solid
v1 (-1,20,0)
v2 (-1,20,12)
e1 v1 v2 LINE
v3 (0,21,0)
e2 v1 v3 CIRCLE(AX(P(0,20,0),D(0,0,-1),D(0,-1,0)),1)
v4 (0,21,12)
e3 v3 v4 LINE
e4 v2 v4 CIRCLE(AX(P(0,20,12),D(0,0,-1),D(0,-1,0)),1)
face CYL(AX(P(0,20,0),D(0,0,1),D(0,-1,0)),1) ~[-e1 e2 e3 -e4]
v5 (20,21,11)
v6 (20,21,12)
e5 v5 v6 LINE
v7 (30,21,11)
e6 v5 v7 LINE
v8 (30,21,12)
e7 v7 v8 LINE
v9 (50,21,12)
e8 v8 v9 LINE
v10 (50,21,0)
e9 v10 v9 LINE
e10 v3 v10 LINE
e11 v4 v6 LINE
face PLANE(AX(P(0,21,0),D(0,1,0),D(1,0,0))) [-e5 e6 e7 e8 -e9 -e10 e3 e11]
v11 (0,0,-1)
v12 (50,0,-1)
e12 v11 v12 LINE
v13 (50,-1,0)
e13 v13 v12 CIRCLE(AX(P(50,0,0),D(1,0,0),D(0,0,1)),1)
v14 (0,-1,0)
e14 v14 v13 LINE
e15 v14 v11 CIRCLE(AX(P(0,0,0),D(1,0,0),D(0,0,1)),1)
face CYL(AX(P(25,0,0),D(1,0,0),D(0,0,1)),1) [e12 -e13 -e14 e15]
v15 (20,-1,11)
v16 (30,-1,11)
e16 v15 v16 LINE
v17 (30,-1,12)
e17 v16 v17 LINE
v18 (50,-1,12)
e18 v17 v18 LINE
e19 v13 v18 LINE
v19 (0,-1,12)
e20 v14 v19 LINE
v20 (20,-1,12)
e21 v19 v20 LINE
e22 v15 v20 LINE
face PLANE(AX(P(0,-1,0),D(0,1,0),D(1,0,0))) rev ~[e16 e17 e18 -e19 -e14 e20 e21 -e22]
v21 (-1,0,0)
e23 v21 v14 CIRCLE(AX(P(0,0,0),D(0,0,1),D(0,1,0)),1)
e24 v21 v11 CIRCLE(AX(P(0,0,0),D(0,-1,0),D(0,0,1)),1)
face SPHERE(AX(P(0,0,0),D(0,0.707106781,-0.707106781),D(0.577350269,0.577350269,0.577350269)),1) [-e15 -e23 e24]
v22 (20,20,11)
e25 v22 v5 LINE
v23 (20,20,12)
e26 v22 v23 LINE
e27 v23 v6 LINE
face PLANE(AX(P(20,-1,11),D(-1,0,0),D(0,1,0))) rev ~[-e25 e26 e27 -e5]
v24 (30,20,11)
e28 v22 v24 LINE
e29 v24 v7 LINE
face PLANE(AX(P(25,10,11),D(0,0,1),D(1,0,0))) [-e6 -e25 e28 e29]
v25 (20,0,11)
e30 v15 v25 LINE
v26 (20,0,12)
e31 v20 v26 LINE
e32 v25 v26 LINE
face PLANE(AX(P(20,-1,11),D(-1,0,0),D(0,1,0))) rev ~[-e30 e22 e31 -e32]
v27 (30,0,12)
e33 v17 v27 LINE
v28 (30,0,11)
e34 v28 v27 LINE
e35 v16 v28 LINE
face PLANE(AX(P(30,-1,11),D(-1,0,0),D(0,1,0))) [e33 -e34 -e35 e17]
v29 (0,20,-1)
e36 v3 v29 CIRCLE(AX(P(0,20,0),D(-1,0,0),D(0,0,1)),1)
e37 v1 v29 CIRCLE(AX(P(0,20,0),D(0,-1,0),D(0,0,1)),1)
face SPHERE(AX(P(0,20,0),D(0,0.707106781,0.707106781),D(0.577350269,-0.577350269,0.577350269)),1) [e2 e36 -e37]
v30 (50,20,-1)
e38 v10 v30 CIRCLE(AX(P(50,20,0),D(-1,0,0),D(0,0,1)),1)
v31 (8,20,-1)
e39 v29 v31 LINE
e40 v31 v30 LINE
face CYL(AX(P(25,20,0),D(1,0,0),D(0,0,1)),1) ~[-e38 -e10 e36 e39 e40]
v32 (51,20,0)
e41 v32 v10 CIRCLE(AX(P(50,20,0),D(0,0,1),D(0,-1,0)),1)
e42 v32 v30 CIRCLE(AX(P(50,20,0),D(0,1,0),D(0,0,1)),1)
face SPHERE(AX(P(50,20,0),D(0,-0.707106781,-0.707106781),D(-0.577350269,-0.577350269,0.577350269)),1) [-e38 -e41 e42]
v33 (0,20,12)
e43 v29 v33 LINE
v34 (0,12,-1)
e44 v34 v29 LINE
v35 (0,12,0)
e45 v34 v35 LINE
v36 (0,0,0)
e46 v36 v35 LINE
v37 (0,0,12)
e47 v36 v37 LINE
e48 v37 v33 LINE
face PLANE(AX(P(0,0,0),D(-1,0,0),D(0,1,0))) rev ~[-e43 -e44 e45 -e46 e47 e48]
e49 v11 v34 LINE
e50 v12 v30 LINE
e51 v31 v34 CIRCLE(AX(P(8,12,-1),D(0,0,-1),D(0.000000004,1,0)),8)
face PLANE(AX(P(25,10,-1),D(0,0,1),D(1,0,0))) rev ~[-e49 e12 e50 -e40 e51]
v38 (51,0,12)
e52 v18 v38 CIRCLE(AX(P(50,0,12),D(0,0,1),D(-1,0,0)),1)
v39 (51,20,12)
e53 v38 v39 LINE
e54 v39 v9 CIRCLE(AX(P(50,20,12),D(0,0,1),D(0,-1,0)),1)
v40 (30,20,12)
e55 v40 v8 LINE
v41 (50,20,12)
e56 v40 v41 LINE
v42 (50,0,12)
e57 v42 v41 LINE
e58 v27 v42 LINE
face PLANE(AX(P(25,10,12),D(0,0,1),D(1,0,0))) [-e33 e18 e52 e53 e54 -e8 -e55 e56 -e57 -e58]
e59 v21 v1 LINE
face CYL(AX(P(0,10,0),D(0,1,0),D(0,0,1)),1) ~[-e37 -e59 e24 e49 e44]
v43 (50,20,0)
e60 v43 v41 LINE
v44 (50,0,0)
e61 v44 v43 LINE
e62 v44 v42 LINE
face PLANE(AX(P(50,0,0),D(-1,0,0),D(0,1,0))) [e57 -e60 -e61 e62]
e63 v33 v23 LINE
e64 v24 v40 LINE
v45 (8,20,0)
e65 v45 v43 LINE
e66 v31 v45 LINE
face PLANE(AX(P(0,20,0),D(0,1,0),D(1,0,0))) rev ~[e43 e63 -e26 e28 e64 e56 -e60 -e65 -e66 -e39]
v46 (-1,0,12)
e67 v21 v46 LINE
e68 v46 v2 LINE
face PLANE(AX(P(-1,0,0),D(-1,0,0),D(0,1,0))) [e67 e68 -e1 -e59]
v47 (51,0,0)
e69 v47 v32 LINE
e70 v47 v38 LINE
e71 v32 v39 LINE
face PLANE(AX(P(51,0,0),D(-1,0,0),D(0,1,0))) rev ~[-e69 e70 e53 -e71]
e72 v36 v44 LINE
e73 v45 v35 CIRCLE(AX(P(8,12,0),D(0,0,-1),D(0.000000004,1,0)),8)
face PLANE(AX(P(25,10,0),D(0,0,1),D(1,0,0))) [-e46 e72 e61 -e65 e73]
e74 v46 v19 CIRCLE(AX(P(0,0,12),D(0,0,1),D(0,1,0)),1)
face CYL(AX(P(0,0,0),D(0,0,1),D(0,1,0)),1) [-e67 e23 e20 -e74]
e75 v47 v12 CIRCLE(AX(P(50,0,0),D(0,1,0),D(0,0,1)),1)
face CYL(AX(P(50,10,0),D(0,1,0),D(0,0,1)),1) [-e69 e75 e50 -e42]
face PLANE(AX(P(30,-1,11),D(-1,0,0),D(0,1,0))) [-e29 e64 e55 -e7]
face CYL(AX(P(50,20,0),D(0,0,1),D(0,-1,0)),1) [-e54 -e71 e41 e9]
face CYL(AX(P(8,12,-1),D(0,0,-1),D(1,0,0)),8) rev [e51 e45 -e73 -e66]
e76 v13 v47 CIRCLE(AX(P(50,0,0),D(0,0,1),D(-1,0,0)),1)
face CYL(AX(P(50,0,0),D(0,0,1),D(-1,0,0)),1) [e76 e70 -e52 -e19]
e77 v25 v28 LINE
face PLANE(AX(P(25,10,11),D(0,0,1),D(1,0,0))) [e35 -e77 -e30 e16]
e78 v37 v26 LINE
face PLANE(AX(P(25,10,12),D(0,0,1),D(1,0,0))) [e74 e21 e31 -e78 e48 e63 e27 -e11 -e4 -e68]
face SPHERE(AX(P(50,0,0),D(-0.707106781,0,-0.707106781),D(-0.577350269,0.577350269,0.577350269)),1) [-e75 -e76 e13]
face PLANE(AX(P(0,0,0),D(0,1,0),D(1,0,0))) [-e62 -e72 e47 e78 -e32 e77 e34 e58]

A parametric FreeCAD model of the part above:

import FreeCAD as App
import Part
import Sketcher
from FreeCAD import Vector


def faces_at(feature, points):
    """Names of the faces that lie closest to the given points."""
    faces = feature.Shape.Faces
    near = lambda p: min(range(len(faces)), key=lambda i: faces[i].distToShape(Part.Vertex(*p))[0])
    return sorted({f"Face{near(p) + 1}" for p in points})

doc = App.newDocument("Part")
params = doc.addObject("Spreadsheet::Sheet", "Params")
for row, (alias, value) in enumerate([
    ("sketch1_width", "50 mm"),
    ("sketch1_height", "20 mm"),
    ("pad1_length", "12 mm"),
    ("thickness_wall", "1 mm"),
    ("sketch2_diameter", "16 mm"),
    ("pocket1_length", "1 mm"),
    ("sketch3_width", "10 mm"),
    ("sketch3_height", "22 mm"),
    ("pocket2_length", "1 mm"),
    ("sketch4_width", "8 mm"),
    ("pocket3_length", "1 mm"),
], start=1):
    params.set(f"A{row}", alias)
    params.set(f"B{row}", "=" + value)
    params.setAlias(f"B{row}", alias)

body = doc.addObject("PartDesign::Body", "Body")

sketch1 = body.newObject("Sketcher::SketchObject", "Sketch")
sketch1.AttachmentSupport = (doc.getObject("XY_Plane"), [""])
sketch1.MapMode = "FlatFace"
sketch1.addGeometry(Part.LineSegment(Vector(0, 20, 0), Vector(0, 0, 0)), False)
sketch1.addGeometry(Part.LineSegment(Vector(0, 0, 0), Vector(50, 0, 0)), False)
sketch1.addGeometry(Part.LineSegment(Vector(50, 0, 0), Vector(50, 20, 0)), False)
sketch1.addGeometry(Part.LineSegment(Vector(50, 20, 0), Vector(0, 20, 0)), False)
sketch1.addConstraint(Sketcher.Constraint("Coincident", 0, 2, 1, 1))
sketch1.addConstraint(Sketcher.Constraint("Coincident", 1, 2, 2, 1))
sketch1.addConstraint(Sketcher.Constraint("Coincident", 2, 2, 3, 1))
sketch1.addConstraint(Sketcher.Constraint("Coincident", 3, 2, 0, 1))
sketch1.addConstraint(Sketcher.Constraint("Vertical", 0))
sketch1.addConstraint(Sketcher.Constraint("Horizontal", 1))
sketch1.addConstraint(Sketcher.Constraint("Vertical", 2))
sketch1.addConstraint(Sketcher.Constraint("Horizontal", 3))
sketch1.addConstraint(Sketcher.Constraint("Coincident", 0, 2, -1, 1))
sketch1.addConstraint(Sketcher.Constraint("DistanceX", 1, 1, 1, 2, 50.0))
sketch1.addConstraint(Sketcher.Constraint("DistanceY", 0, 2, 0, 1, 20.0))
sketch1.setExpression("Constraints[9]", "Params.sketch1_width")
sketch1.setExpression("Constraints[10]", "Params.sketch1_height")
pad1 = body.newObject("PartDesign::Pad", "Pad")
pad1.Profile = sketch1
pad1.setExpression("Length", "Params.pad1_length")
doc.recompute()

thickness = body.newObject("PartDesign::Thickness", "Thickness")
thickness.Base = (pad1, faces_at(pad1, [(25, 10, 12)]))
thickness.setExpression("Value", "Params.thickness_wall")
thickness.Reversed = False
thickness.Join = "Arc"

sketch2 = body.newObject("Sketcher::SketchObject", "Sketch001")
sketch2.AttachmentSupport = (doc.getObject("XY_Plane"), [""])
sketch2.MapMode = "FlatFace"
sketch2.AttachmentOffset = App.Placement(Vector(0, 0, -1), App.Rotation())
sketch2.addGeometry(Part.Circle(Vector(8, 12, 0), Vector(0, 0, 1), 8), False)
sketch2.addConstraint(Sketcher.Constraint("Diameter", 0, 16.0))
sketch2.addConstraint(Sketcher.Constraint("DistanceX", -1, 1, 0, 3, 8.0))
sketch2.addConstraint(Sketcher.Constraint("DistanceY", -1, 1, 0, 3, 12.0))
sketch2.setExpression("Constraints[0]", "Params.sketch2_diameter")
pocket1 = body.newObject("PartDesign::Pocket", "Pocket")
pocket1.Profile = sketch2
pocket1.setExpression("Length", "Params.pocket1_length")
pocket1.Reversed = True

sketch3 = body.newObject("Sketcher::SketchObject", "Sketch002")
sketch3.AttachmentSupport = (doc.getObject("XY_Plane"), [""])
sketch3.MapMode = "FlatFace"
sketch3.AttachmentOffset = App.Placement(Vector(0, 0, 11), App.Rotation())
sketch3.addGeometry(Part.LineSegment(Vector(20, 21, 0), Vector(20, -1, 0)), False)
sketch3.addGeometry(Part.LineSegment(Vector(20, -1, 0), Vector(30, -1, 0)), False)
sketch3.addGeometry(Part.LineSegment(Vector(30, -1, 0), Vector(30, 21, 0)), False)
sketch3.addGeometry(Part.LineSegment(Vector(30, 21, 0), Vector(20, 21, 0)), False)
sketch3.addConstraint(Sketcher.Constraint("Coincident", 0, 2, 1, 1))
sketch3.addConstraint(Sketcher.Constraint("Coincident", 1, 2, 2, 1))
sketch3.addConstraint(Sketcher.Constraint("Coincident", 2, 2, 3, 1))
sketch3.addConstraint(Sketcher.Constraint("Coincident", 3, 2, 0, 1))
sketch3.addConstraint(Sketcher.Constraint("Vertical", 0))
sketch3.addConstraint(Sketcher.Constraint("Horizontal", 1))
sketch3.addConstraint(Sketcher.Constraint("Vertical", 2))
sketch3.addConstraint(Sketcher.Constraint("Horizontal", 3))
sketch3.addConstraint(Sketcher.Constraint("DistanceX", 1, 1, 1, 2, 10.0))
sketch3.addConstraint(Sketcher.Constraint("DistanceY", 0, 2, 0, 1, 22.0))
sketch3.addConstraint(Sketcher.Constraint("DistanceX", -1, 1, 0, 2, 20.0))
sketch3.addConstraint(Sketcher.Constraint("DistanceY", 0, 2, -1, 1, 1.0))
sketch3.setExpression("Constraints[8]", "Params.sketch3_width")
sketch3.setExpression("Constraints[9]", "Params.sketch3_height")
pocket2 = body.newObject("PartDesign::Pocket", "Pocket001")
pocket2.Profile = sketch3
pocket2.setExpression("Length", "Params.pocket2_length")
pocket2.Reversed = True

sketch4 = body.newObject("Sketcher::SketchObject", "Sketch003")
sketch4.AttachmentSupport = (doc.getObject("XY_Plane"), [""])
sketch4.MapMode = "FlatFace"
sketch4.AttachmentOffset = App.Placement(Vector(0, 0, -1), App.Rotation())
sketch4.addGeometry(Part.LineSegment(Vector(0, 20, 0), Vector(0, 12, 0)), False)
sketch4.addGeometry(Part.LineSegment(Vector(0, 12, 0), Vector(8, 12, 0)), False)
sketch4.addGeometry(Part.LineSegment(Vector(8, 12, 0), Vector(8, 20, 0)), False)
sketch4.addGeometry(Part.LineSegment(Vector(8, 20, 0), Vector(0, 20, 0)), False)
sketch4.addConstraint(Sketcher.Constraint("Coincident", 0, 2, 1, 1))
sketch4.addConstraint(Sketcher.Constraint("Coincident", 1, 2, 2, 1))
sketch4.addConstraint(Sketcher.Constraint("Coincident", 2, 2, 3, 1))
sketch4.addConstraint(Sketcher.Constraint("Coincident", 3, 2, 0, 1))
sketch4.addConstraint(Sketcher.Constraint("Vertical", 0))
sketch4.addConstraint(Sketcher.Constraint("Horizontal", 1))
sketch4.addConstraint(Sketcher.Constraint("Vertical", 2))
sketch4.addConstraint(Sketcher.Constraint("Horizontal", 3))
sketch4.addConstraint(Sketcher.Constraint("PointOnObject", 0, 2, -2))
sketch4.addConstraint(Sketcher.Constraint("Equal", 3, 0))
sketch4.addConstraint(Sketcher.Constraint("DistanceX", 1, 1, 1, 2, 8.0))
sketch4.addConstraint(Sketcher.Constraint("DistanceY", -1, 1, 0, 2, 12.0))
sketch4.setExpression("Constraints[10]", "Params.sketch4_width")
pocket3 = body.newObject("PartDesign::Pocket", "Pocket002")
pocket3.Profile = sketch4
pocket3.setExpression("Length", "Params.pocket3_length")
pocket3.Reversed = True

doc.recompute()
